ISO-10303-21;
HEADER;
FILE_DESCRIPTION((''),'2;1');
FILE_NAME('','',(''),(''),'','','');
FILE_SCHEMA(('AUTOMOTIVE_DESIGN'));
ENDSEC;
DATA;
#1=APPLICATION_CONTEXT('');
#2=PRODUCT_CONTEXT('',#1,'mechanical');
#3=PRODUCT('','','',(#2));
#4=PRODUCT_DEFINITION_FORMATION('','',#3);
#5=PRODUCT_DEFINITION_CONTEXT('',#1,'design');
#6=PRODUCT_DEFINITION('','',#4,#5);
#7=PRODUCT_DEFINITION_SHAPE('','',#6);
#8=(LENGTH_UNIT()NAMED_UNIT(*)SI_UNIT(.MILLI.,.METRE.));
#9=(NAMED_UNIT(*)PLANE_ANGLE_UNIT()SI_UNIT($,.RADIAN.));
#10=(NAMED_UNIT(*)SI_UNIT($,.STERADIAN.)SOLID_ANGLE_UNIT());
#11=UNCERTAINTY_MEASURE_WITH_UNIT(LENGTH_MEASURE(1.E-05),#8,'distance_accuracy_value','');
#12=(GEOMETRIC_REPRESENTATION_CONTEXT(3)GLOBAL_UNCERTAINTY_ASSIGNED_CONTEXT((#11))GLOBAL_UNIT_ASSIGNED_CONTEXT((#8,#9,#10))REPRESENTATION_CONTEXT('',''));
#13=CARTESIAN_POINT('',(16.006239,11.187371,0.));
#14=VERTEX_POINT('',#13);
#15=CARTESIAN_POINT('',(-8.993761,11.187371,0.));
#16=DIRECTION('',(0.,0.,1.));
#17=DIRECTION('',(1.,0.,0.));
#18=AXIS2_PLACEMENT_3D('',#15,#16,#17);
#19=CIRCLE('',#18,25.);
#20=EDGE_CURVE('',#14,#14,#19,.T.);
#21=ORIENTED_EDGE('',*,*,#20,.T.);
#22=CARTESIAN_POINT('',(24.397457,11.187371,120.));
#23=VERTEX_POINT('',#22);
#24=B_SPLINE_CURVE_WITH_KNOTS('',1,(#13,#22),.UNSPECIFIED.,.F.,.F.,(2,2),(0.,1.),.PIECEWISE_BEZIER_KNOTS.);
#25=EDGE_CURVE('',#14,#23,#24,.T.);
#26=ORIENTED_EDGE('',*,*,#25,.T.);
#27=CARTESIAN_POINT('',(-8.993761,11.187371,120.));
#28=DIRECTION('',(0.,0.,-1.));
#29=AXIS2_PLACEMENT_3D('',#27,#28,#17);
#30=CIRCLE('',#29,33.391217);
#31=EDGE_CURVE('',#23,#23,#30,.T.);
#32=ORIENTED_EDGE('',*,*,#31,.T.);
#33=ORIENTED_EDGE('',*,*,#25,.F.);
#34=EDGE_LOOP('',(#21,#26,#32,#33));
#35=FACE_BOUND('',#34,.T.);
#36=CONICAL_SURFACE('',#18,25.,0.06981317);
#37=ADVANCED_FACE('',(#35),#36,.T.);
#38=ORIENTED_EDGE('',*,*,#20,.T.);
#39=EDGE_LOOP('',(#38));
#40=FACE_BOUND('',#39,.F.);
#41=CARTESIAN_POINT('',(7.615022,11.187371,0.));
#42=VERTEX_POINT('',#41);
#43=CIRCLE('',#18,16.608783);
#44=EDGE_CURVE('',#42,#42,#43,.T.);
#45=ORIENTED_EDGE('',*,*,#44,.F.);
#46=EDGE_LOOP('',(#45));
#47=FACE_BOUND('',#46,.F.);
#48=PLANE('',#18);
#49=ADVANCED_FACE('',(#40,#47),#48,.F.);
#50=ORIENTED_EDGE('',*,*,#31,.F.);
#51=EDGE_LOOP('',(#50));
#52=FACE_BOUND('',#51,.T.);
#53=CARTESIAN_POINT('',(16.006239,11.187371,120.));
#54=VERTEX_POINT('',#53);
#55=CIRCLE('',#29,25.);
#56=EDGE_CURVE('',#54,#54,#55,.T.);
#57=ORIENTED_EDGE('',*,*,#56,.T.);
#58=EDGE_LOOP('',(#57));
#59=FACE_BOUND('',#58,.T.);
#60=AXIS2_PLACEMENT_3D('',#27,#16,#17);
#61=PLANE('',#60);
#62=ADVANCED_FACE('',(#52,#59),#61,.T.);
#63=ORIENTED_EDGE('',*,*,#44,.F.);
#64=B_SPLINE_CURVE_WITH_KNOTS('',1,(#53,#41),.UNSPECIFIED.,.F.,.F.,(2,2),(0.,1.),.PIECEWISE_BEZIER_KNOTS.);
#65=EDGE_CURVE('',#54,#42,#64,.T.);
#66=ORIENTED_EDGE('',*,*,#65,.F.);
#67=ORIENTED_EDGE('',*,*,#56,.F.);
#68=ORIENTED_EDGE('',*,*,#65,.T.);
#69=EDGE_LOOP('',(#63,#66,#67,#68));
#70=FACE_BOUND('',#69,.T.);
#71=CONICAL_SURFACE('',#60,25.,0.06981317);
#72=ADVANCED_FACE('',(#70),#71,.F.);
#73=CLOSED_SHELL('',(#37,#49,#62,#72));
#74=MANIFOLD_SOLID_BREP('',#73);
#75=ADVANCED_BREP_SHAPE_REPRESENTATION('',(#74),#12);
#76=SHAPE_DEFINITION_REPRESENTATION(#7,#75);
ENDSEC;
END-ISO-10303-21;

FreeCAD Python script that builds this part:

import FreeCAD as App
import Part
import Sketcher
from FreeCAD import Vector

doc = App.newDocument("Part")
params = doc.addObject("Spreadsheet::Sheet", "Params")
for row, (alias, value) in enumerate([
    ("sketch1_diameter", "50 mm"),
    ("pad1_length", "120 mm"),
    ("pad1_taper", "4 deg"),
    ("sketch2_diameter", "50 mm"),
    ("pocket1_length", "120 mm"),
    ("pocket1_taper", "-4 deg"),
], start=1):
    params.set(f"A{row}", alias)
    params.set(f"B{row}", "=" + value)
    params.setAlias(f"B{row}", alias)

body = doc.addObject("PartDesign::Body", "Body")

# Sketch on XY plane
sketch1 = doc.addObject("Sketcher::SketchObject", "Sketch")
body.addObject(sketch1)
sketch1.AttachmentSupport = (doc.XY_Plane, [""])
sketch1.MapMode = "FlatFace"
sketch1.addGeometry(Part.Circle(Vector(-9, 11, 0), Vector(0, 0, 1), 25), False)
sketch1.addConstraint(Sketcher.Constraint("Diameter", 0, 50.0))
sketch1.addConstraint(Sketcher.Constraint("DistanceX", 0, 3, -1, 1, 8.993761))
sketch1.addConstraint(Sketcher.Constraint("DistanceY", -1, 1, 0, 3, 11.187371))
sketch1.setExpression("Constraints[0]", "Params.sketch1_diameter")
pad1 = doc.addObject("PartDesign::Pad", "Pad")
body.addObject(pad1)
pad1.Profile = sketch1
pad1.setExpression("Length", "Params.pad1_length")
pad1.setExpression("TaperAngle", "Params.pad1_taper")

# Sketch on XY plane
sketch2 = doc.addObject("Sketcher::SketchObject", "Sketch001")
body.addObject(sketch2)
sketch2.AttachmentSupport = (doc.XY_Plane, [""])
sketch2.MapMode = "FlatFace"
sketch2.AttachmentOffset = App.Placement(Vector(0, 0, 120), App.Rotation())
sketch2.addGeometry(Part.Circle(Vector(-9, 11, 0), Vector(0, 0, 1), 25), False)
sketch2.addConstraint(Sketcher.Constraint("Diameter", 0, 50.0))
sketch2.addConstraint(Sketcher.Constraint("DistanceX", 0, 3, -1, 1, 8.993761))
sketch2.addConstraint(Sketcher.Constraint("DistanceY", -1, 1, 0, 3, 11.187371))
sketch2.setExpression("Constraints[0]", "Params.sketch2_diameter")
pocket1 = doc.addObject("PartDesign::Pocket", "Pocket")
body.addObject(pocket1)
pocket1.Profile = sketch2
pocket1.setExpression("Length", "Params.pocket1_length")
pocket1.setExpression("TaperAngle", "Params.pocket1_taper")

doc.recompute()
